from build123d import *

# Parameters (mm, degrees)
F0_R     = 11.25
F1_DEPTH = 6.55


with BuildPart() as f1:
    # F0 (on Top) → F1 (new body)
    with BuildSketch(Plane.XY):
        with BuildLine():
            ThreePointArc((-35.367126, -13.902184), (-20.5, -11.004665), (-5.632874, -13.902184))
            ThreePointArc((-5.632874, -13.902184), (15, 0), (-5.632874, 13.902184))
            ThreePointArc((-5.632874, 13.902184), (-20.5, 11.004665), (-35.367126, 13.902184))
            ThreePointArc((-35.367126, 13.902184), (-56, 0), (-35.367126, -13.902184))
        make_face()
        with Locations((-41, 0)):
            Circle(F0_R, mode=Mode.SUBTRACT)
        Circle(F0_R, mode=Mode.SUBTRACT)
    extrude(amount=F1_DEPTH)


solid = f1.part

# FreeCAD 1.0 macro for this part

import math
import FreeCAD as App
import Part
import Sketcher

doc = App.newDocument("Part")
body = doc.addObject("PartDesign::Body", "Body")

# Sketch on XY plane
sketch1 = body.newObject("Sketcher::SketchObject", "Sketch")
sketch1.AttachmentSupport = (doc.getObject("XY_Plane"), [""])
sketch1.MapMode = "FlatFace"
sketch1.addGeometry(Part.ArcOfCircle(Part.Circle(App.Vector(-20.5, -50.594923, 0), App.Vector(0, 0, 1), 39.590258), math.radians(67.943244), math.radians(112.056756)), False)
sketch1.addGeometry(Part.ArcOfCircle(Part.Circle(App.Vector(0, 0, 0), App.Vector(0, 0, 1), 15), math.radians(-112.056762), math.radians(112.056762)), False)
sketch1.addGeometry(Part.ArcOfCircle(Part.Circle(App.Vector(-20.5, 50.594923, 0), App.Vector(0, 0, 1), 39.590258), math.radians(-112.056756), math.radians(-67.943244)), False)
sketch1.addGeometry(Part.ArcOfCircle(Part.Circle(App.Vector(-41, 0, 0), App.Vector(0, 0, 1), 15), math.radians(67.943238), math.radians(292.056762)), False)
sketch1.addGeometry(Part.Circle(App.Vector(-41, 0, 0), App.Vector(0, 0, 1), 11.25), False)
sketch1.addGeometry(Part.Circle(App.Vector(0, 0, 0), App.Vector(0, 0, 1), 11.25), False)
sketch1.addConstraint(Sketcher.Constraint("Tangent", 0, 1, 1, 1))
sketch1.addConstraint(Sketcher.Constraint("Tangent", 1, 2, 2, 2))
sketch1.addConstraint(Sketcher.Constraint("Tangent", 2, 1, 3, 1))
sketch1.addConstraint(Sketcher.Constraint("Tangent", 3, 2, 0, 2))
sketch1.addConstraint(Sketcher.Constraint("Coincident", 1, 3, -1, 1))
sketch1.addConstraint(Sketcher.Constraint("Coincident", 5, 3, -1, 1))
sketch1.addConstraint(Sketcher.Constraint("Coincident", 4, 3, 3, 3))
sketch1.addConstraint(Sketcher.Constraint("Equal", 0, 2))
sketch1.addConstraint(Sketcher.Constraint("Equal", 1, 3))
sketch1.addConstraint(Sketcher.Constraint("Equal", 4, 5))
sketch1.addConstraint(Sketcher.Constraint("PointOnObject", 3, 3, -1))
sketch1.addConstraint(Sketcher.Constraint("Radius", 1, 15.0))
sketch1.addConstraint(Sketcher.Constraint("Diameter", 4, 22.5))
sketch1.addConstraint(Sketcher.Constraint("DistanceX", 3, 3, -1, 1, 41.0))
sketch1.addConstraint(Sketcher.Constraint("Radius", 0, 39.590258))
pad1 = body.newObject("PartDesign::Pad", "Pad")
pad1.Profile = sketch1
pad1.Length = 6.55

doc.recompute()
